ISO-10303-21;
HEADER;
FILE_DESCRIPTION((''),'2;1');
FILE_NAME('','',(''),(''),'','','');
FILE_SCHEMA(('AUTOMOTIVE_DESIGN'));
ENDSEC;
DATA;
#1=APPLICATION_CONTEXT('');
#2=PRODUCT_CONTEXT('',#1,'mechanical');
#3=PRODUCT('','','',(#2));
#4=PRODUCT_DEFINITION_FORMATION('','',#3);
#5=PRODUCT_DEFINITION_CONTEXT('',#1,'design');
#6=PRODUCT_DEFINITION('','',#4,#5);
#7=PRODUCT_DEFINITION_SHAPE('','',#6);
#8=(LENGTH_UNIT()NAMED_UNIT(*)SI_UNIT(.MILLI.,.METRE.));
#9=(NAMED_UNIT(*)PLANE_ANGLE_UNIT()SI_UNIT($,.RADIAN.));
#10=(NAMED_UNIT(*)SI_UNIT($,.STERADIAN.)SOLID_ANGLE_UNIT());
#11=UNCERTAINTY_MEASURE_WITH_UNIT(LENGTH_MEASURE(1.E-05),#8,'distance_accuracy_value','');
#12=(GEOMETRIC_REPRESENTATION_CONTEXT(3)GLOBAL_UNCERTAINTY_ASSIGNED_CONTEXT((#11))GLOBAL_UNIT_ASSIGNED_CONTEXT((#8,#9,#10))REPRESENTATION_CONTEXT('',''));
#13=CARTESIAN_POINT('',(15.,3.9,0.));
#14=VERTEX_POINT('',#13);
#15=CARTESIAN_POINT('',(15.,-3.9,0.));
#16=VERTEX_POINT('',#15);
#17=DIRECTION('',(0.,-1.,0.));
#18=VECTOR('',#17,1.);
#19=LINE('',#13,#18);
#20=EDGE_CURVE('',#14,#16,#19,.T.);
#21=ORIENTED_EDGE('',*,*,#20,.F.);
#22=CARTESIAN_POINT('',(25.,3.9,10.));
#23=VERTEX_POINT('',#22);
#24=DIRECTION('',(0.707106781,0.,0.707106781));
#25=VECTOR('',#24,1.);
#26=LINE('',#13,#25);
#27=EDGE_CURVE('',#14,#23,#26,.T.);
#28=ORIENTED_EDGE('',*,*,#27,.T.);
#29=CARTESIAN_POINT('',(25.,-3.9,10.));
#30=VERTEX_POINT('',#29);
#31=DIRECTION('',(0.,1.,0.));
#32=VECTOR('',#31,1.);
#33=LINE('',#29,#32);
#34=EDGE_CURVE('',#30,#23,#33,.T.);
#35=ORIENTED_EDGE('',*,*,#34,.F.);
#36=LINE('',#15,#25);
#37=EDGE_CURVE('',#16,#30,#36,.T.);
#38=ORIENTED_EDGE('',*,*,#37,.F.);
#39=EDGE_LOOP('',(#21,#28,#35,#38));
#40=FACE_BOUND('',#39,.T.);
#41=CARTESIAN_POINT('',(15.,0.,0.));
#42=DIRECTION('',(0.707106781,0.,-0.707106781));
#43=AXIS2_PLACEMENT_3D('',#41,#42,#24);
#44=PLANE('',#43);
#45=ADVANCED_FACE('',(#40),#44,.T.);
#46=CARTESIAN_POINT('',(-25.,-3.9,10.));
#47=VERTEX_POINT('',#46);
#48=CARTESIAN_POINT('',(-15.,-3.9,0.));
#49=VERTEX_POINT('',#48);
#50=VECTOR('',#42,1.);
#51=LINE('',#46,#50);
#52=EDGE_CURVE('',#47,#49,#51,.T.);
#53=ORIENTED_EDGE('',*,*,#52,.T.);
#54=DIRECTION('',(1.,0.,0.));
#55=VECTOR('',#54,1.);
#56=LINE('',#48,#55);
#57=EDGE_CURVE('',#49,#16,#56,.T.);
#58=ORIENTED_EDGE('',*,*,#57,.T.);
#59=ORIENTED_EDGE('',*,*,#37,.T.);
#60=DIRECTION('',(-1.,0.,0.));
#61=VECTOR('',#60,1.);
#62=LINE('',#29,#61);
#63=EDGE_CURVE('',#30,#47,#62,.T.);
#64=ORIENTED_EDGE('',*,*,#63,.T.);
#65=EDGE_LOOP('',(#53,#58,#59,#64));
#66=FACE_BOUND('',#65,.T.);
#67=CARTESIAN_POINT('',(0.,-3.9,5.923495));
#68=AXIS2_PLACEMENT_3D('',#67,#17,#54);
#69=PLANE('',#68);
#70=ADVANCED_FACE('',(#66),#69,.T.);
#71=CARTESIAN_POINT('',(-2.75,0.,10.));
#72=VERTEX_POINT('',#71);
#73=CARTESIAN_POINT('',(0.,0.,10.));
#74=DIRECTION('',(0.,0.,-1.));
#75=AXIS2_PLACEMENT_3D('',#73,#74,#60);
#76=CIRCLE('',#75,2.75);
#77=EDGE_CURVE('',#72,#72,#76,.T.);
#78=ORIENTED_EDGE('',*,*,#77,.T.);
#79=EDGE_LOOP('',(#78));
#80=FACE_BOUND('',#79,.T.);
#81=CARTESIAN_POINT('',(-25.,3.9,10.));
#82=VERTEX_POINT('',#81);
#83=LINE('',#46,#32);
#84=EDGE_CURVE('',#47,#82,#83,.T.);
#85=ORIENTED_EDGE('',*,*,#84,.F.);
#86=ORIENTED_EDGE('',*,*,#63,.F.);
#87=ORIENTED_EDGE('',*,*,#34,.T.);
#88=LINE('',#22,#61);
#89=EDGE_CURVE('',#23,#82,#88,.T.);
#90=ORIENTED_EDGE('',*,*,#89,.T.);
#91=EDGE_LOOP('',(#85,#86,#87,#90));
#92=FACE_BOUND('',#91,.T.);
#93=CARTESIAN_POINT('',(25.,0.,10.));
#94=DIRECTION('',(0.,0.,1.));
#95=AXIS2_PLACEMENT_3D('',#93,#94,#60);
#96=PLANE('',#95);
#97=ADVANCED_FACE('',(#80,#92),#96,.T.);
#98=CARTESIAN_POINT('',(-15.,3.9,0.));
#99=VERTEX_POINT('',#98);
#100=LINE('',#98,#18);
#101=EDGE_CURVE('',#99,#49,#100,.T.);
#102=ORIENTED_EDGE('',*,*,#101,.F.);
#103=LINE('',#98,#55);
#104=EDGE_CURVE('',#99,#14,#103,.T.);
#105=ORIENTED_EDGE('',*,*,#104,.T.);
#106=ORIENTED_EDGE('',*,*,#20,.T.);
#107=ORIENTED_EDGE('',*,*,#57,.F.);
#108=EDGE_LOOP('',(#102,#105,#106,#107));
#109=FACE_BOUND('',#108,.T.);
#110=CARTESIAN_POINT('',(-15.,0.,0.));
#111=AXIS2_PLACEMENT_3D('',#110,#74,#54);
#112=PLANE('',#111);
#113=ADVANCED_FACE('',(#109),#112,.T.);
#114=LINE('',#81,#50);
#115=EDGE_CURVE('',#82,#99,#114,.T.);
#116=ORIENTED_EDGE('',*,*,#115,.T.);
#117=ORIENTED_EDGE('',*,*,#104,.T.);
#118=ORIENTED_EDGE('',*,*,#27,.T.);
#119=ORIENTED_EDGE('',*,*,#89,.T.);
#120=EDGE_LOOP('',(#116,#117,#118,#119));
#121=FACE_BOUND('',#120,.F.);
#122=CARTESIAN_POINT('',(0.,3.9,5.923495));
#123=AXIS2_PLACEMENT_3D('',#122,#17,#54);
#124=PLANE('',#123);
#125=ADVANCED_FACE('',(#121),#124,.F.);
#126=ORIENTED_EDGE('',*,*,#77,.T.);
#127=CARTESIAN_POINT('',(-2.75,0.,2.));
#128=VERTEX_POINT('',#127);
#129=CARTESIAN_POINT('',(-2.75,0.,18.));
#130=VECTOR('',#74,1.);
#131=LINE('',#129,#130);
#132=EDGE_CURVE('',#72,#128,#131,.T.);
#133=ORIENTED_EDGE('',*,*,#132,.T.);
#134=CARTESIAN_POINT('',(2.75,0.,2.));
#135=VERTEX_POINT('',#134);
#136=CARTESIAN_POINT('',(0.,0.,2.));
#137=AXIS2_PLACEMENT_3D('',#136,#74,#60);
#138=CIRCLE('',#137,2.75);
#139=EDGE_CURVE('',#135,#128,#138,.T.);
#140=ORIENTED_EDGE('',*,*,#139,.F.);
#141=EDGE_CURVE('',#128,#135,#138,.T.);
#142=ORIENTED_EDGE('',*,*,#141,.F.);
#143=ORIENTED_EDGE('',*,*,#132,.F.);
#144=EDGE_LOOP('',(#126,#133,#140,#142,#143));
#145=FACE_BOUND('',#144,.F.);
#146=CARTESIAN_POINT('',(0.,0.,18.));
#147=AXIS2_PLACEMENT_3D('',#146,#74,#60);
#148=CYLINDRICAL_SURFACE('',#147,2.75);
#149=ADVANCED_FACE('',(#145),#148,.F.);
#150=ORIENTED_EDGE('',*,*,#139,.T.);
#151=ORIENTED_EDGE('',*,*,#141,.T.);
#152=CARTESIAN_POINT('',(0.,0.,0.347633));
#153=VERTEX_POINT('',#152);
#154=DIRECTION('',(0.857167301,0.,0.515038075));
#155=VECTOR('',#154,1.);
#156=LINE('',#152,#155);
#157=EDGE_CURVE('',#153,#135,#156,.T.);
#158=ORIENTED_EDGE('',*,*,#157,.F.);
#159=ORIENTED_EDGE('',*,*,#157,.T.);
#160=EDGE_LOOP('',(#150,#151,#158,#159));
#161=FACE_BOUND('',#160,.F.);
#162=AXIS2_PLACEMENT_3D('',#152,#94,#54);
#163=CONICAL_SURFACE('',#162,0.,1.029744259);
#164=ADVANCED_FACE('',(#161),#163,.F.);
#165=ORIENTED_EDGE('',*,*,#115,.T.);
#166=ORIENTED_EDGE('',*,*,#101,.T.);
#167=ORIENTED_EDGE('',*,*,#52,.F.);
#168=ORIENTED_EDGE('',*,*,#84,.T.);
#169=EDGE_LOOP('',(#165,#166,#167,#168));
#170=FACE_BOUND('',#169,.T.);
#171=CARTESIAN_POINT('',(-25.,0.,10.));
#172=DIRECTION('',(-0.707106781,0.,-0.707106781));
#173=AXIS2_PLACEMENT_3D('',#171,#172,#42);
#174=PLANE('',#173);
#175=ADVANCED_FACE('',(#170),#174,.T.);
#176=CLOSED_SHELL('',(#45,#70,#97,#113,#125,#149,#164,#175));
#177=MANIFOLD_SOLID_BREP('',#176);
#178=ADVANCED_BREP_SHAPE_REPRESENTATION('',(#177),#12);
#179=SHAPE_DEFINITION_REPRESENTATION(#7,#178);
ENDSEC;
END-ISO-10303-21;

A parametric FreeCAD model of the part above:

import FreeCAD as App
import Part
import Sketcher
Q = App.Units.Quantity


def add_polygon(sketch, points):
    """Adds a closed chain of lines whose ends are joined by coincident constraints."""
    first, n = sketch.GeometryCount, len(points)
    for a, b in zip(points, points[1:] + points[:1]):
        sketch.addGeometry(Part.LineSegment(App.Vector(*a, 0), App.Vector(*b, 0)), False)
    for i in range(n):
        sketch.addConstraint(Sketcher.Constraint("Coincident", first + i, 2, first + (i + 1) % n, 1))

doc = App.newDocument("Part")
body = doc.addObject("PartDesign::Body", "Body")

# Sketch on XZ plane
sketch1 = doc.addObject("Sketcher::SketchObject", "Sketch")
body.addObject(sketch1)
sketch1.AttachmentSupport = (doc.XZ_Plane, [""])
sketch1.MapMode = "FlatFace"
add_polygon(sketch1, [(-25, 10), (-15, 0), (15, 0), (25, 10)])  # lines 0-3
sketch1.addConstraint([
    Sketcher.Constraint("Horizontal", 1),
    Sketcher.Constraint("Horizontal", 3),
    Sketcher.Constraint("Symmetric", 0, 2, 1, 2, -1, 1),
    Sketcher.Constraint("Perpendicular", 0, 2),
    Sketcher.Constraint("Equal", 0, 2),
    Sketcher.Constraint("DistanceX", 1, 1, 1, 2, Q("30 mm")),
    Sketcher.Constraint("DistanceX", 3, 2, 3, 1, Q("50 mm")),
])
pad1 = doc.addObject("PartDesign::Pad", "Pad")
body.addObject(pad1)
pad1.Profile = sketch1
pad1.Length = 7.8
pad1.Midplane = True

# Sketch on XY plane
sketch2 = doc.addObject("Sketcher::SketchObject", "Sketch001")
body.addObject(sketch2)
sketch2.AttachmentSupport = (doc.XY_Plane, [""])
sketch2.MapMode = "FlatFace"
sketch2.AttachmentOffset = App.Placement(App.Vector(0, 0, 10), App.Rotation())
sketch2.addGeometry(Part.Circle(App.Vector(0, 0, 0), App.Vector(0, 0, 1), 2.8), False)
sketch2.addConstraint([
    Sketcher.Constraint("Coincident", 0, 3, -1, 1),
    Sketcher.Constraint("Diameter", 0, Q("5.5 mm")),
])
doc.recompute()
hole = doc.addObject("PartDesign::Hole", "Hole")
body.addObject(hole)
hole.Profile = sketch2
hole.ThreadType = "None"
hole.Diameter = 5.5
hole.DepthType = "Dimension"
hole.Depth = 8
hole.DrillPoint = "Angled"
hole.DrillPointAngle = 118

doc.recompute()
